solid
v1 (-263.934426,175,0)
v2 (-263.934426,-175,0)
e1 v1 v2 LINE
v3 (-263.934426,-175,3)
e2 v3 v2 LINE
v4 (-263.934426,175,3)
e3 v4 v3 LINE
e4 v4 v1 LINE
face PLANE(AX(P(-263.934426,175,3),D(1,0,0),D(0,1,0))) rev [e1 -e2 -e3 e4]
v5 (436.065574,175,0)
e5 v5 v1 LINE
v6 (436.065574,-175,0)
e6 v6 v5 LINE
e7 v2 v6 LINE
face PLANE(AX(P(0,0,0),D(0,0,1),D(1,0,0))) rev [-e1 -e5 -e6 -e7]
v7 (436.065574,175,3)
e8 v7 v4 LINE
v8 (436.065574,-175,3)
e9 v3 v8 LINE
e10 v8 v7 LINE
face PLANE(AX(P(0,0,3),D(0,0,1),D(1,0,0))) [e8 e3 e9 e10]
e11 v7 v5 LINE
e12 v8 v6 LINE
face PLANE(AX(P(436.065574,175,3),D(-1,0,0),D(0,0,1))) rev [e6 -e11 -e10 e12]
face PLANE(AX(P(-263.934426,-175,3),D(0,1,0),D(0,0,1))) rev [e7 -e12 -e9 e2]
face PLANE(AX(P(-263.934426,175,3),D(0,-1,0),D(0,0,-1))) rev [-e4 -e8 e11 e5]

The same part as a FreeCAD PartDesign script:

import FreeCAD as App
import Part
import Sketcher


def add_polygon(sketch, points):
    """Adds a closed chain of lines whose ends are joined by coincident constraints."""
    first, n = sketch.GeometryCount, len(points)
    for a, b in zip(points, points[1:] + points[:1]):
        sketch.addGeometry(Part.LineSegment(App.Vector(*a, 0), App.Vector(*b, 0)), False)
    for i in range(n):
        sketch.addConstraint(Sketcher.Constraint("Coincident", first + i, 2, first + (i + 1) % n, 1))

doc = App.newDocument("Part")
body = doc.addObject("PartDesign::Body", "Body")

sketch1 = body.newObject("Sketcher::SketchObject", "Sketch")
sketch1.AttachmentSupport = (doc.getObject("XY_Plane"), [""])
sketch1.MapMode = "FlatFace"
add_polygon(sketch1, [(-264, 175), (-264, -175), (436, -175), (436, 175)])
sketch1.addConstraint(Sketcher.Constraint("Vertical", 0))
sketch1.addConstraint(Sketcher.Constraint("Horizontal", 1))
sketch1.addConstraint(Sketcher.Constraint("Vertical", 2))
sketch1.addConstraint(Sketcher.Constraint("Horizontal", 3))
sketch1.addConstraint(Sketcher.Constraint("DistanceX", 1, 1, 1, 2, 700.0))
sketch1.addConstraint(Sketcher.Constraint("DistanceY", 0, 2, 0, 1, 350.0))
sketch1.addConstraint(Sketcher.Constraint("DistanceY", 0, 2, -1, 1, 175.0))
sketch1.addConstraint(Sketcher.Constraint("DistanceX", 0, 2, -1, 1, 263.934426))
pad1 = body.newObject("PartDesign::Pad", "Pad")
pad1.Profile = sketch1
pad1.Length = 3

doc.recompute()
